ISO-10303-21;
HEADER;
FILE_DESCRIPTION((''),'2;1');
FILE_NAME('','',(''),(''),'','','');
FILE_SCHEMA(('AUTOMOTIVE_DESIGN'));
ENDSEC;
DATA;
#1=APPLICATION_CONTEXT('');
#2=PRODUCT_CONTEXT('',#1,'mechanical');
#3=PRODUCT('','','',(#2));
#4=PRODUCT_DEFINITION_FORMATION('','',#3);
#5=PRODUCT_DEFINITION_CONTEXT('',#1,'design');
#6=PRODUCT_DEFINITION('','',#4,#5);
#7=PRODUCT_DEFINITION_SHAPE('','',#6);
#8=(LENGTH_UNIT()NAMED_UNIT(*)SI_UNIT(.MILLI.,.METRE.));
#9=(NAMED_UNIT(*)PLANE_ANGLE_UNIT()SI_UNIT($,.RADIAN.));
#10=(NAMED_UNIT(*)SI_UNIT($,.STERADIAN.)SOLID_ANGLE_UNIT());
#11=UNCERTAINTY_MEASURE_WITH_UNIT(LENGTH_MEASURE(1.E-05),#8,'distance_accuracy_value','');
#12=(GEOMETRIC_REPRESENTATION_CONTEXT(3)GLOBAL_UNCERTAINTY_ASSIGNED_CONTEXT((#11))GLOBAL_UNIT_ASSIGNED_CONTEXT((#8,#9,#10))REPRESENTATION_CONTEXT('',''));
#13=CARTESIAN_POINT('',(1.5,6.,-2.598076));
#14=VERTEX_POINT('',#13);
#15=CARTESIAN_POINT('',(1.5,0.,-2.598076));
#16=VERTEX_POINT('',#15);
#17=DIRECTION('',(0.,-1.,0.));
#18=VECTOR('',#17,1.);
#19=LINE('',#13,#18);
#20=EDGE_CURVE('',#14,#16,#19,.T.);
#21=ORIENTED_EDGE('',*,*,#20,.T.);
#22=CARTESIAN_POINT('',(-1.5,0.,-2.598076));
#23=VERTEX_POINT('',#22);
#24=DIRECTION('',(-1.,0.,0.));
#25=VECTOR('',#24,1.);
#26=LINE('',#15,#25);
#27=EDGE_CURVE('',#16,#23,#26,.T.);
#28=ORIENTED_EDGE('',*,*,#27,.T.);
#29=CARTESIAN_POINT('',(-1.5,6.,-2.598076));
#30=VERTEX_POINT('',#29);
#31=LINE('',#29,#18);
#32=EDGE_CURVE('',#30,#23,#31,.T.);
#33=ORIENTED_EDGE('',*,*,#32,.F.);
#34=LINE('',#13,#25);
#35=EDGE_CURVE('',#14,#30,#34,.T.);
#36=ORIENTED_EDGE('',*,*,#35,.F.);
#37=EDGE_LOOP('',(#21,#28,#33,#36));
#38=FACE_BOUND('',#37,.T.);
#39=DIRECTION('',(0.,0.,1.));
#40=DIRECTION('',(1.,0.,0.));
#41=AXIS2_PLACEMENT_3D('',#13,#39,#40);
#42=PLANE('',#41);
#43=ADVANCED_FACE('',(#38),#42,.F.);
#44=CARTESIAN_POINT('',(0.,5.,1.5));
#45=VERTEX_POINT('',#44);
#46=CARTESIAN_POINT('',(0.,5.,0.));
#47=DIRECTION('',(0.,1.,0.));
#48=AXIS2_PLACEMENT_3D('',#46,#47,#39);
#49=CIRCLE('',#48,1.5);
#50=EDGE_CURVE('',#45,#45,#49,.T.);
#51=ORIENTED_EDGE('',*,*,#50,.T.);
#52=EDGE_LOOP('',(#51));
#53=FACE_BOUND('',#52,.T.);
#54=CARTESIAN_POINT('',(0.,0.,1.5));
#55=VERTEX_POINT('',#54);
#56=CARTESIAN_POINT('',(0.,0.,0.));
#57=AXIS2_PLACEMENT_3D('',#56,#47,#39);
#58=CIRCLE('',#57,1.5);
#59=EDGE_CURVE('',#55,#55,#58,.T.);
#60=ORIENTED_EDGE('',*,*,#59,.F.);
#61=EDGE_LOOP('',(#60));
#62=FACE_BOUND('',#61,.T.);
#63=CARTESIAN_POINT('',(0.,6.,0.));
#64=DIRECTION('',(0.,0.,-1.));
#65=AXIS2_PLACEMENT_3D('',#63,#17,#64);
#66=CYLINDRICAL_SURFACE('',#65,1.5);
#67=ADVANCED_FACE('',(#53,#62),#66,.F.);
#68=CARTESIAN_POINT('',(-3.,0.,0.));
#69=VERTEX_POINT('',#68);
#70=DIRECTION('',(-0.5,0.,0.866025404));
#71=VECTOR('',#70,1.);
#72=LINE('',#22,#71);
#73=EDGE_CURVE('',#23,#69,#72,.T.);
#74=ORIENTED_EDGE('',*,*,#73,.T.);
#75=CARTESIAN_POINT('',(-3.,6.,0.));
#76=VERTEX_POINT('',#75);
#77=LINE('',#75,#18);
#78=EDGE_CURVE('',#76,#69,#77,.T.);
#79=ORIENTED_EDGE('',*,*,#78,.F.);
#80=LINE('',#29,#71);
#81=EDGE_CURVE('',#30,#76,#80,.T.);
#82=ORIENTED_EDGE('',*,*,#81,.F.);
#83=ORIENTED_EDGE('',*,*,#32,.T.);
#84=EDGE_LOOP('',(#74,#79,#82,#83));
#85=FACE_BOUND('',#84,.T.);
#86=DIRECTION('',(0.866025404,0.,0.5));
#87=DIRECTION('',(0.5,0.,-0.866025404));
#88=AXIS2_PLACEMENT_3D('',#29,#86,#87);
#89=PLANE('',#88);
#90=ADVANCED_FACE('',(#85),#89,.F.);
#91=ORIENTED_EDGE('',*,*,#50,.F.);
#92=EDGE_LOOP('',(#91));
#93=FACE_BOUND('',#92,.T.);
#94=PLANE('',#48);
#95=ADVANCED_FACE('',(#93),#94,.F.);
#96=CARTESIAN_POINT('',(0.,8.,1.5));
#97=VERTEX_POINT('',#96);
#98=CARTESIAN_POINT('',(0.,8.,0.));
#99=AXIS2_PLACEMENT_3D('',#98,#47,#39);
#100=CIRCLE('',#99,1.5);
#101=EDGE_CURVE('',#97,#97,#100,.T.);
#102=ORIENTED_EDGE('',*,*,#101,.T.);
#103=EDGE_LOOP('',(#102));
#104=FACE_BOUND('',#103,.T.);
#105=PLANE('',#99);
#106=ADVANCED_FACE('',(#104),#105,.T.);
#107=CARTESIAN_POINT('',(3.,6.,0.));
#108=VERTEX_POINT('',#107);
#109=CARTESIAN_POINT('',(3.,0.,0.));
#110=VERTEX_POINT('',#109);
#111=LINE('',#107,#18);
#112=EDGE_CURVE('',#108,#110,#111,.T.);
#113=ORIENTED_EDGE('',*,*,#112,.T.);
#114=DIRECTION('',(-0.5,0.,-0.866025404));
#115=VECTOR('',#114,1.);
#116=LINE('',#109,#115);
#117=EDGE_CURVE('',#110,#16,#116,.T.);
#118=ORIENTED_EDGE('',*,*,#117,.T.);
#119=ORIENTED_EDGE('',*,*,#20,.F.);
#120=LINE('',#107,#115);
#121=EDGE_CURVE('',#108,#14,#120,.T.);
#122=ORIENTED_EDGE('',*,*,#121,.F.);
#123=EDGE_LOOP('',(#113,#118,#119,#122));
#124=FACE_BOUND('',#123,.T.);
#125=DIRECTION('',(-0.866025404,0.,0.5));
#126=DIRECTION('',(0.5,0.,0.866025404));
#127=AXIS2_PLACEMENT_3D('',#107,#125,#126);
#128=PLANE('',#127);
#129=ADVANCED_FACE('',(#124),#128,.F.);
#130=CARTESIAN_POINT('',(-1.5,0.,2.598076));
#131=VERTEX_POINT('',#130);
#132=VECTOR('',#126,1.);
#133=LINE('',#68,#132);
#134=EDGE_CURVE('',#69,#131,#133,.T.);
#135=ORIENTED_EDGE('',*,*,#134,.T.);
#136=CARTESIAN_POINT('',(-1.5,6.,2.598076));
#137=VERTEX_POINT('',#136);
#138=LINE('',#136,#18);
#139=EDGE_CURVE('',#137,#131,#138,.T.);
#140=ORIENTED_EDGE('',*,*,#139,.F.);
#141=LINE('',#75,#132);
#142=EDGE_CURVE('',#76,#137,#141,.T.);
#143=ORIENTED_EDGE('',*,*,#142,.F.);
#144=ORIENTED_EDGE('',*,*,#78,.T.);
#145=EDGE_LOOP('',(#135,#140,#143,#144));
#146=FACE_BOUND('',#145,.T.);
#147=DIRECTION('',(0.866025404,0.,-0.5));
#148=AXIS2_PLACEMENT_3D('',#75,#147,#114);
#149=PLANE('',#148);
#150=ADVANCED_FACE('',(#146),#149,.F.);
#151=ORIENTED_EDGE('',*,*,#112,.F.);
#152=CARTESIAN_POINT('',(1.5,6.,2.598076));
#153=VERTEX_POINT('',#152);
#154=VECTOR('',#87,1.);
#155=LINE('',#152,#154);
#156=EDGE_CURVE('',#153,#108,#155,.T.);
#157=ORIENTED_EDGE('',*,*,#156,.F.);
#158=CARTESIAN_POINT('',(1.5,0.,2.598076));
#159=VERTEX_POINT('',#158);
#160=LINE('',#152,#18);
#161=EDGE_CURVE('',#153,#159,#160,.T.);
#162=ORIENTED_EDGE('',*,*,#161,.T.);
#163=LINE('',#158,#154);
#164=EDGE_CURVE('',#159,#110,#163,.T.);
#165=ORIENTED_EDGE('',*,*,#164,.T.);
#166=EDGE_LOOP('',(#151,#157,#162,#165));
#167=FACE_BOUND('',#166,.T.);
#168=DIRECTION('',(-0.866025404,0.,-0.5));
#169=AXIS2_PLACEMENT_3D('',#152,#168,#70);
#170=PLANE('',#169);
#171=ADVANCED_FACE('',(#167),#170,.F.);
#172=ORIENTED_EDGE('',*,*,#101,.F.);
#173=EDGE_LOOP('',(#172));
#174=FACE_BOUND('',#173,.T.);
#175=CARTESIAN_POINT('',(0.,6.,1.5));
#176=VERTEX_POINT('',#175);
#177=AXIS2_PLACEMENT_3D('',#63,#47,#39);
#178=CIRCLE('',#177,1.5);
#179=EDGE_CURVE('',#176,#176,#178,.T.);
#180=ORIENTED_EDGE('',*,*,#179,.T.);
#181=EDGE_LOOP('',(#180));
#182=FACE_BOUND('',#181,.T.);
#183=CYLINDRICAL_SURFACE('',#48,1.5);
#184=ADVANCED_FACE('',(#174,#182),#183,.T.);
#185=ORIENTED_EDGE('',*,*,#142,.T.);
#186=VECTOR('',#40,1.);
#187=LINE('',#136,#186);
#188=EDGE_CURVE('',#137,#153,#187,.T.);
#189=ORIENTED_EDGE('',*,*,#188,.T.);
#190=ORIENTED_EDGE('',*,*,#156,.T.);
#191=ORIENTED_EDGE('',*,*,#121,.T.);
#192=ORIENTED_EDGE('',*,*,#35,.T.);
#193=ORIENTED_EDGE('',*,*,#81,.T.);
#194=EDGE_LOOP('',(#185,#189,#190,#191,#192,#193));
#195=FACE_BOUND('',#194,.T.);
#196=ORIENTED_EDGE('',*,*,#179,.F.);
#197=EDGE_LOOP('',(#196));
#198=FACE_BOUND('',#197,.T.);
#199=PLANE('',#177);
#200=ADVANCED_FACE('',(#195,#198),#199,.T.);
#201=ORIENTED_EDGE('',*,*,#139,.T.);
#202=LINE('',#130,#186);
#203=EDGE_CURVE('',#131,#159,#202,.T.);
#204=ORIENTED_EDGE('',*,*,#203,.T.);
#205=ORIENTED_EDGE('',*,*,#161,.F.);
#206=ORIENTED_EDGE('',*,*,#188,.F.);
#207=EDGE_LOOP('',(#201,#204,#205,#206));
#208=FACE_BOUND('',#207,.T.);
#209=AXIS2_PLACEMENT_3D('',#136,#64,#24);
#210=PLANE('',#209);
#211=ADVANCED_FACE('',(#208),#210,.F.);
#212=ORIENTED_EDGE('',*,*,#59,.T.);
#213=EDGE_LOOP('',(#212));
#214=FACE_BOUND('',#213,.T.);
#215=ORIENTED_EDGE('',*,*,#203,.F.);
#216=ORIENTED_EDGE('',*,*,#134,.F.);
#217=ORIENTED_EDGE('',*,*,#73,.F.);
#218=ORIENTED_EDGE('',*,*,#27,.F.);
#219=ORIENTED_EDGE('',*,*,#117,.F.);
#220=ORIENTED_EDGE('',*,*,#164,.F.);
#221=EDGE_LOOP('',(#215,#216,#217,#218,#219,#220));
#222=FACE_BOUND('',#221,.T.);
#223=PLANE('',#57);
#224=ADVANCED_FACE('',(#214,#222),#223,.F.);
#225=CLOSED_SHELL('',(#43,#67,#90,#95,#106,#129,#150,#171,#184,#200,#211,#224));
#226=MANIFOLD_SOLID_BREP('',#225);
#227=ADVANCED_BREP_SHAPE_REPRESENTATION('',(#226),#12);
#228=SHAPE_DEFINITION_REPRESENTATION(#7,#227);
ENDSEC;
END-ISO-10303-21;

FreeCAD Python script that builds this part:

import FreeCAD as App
import Part
import Sketcher
Q = App.Units.Quantity


def add_polygon(sketch, points):
    """Adds a closed chain of lines whose ends are joined by coincident constraints."""
    first, n = sketch.GeometryCount, len(points)
    for a, b in zip(points, points[1:] + points[:1]):
        sketch.addGeometry(Part.LineSegment(App.Vector(*a, 0), App.Vector(*b, 0)), False)
    for i in range(n):
        sketch.addConstraint(Sketcher.Constraint("Coincident", first + i, 2, first + (i + 1) % n, 1))

doc = App.newDocument("Part")
body = doc.addObject("PartDesign::Body", "Body")

# Sketch on XZ plane
sketch1 = body.newObject("Sketcher::SketchObject", "Sketch")
sketch1.AttachmentSupport = (doc.getObject("XZ_Plane"), [""])
sketch1.MapMode = "FlatFace"
add_polygon(sketch1, [(3, 0), (1.5, -2.6), (-1.5, -2.6), (-3, 0), (-1.5, 2.6), (1.5, 2.6)])  # lines 0-5
sketch1.addGeometry(Part.Circle(App.Vector(0, 0, 0), App.Vector(0, 0, 1), 1.5), False)  # 6
sketch1.addConstraint([
    Sketcher.Constraint("Horizontal", 1),
    Sketcher.Constraint("Horizontal", 4),
    Sketcher.Constraint("Coincident", 6, 3, -1, 1),
    Sketcher.Constraint("Symmetric", 0, 2, 3, 2, -1, 1),
    Sketcher.Constraint("Symmetric", 2, 2, 5, 2, -1, 1),
    Sketcher.Constraint("PointOnObject", 2, 2, -1),
    Sketcher.Constraint("Parallel", 2, 5),
    Sketcher.Constraint("Vertical", 1, 2, 3, 2),
    Sketcher.Constraint("Diameter", 6, Q("3 mm")),
    Sketcher.Constraint("DistanceX", 1, 2, 1, 1, Q("3 mm")),
    Sketcher.Constraint("Angle", 0, Q("-120 deg")),
    Sketcher.Constraint("Distance", 0, Q("3 mm")),
])
pad1 = body.newObject("PartDesign::Pad", "Pad")
pad1.Profile = sketch1
pad1.Length = 6
pad1.Reversed = True

# Sketch on XZ plane
sketch2 = body.newObject("Sketcher::SketchObject", "Sketch001")
sketch2.AttachmentSupport = (doc.getObject("XZ_Plane"), [""])
sketch2.MapMode = "FlatFace"
sketch2.AttachmentOffset = App.Placement(App.Vector(0, 0, -6), App.Rotation())
sketch2.addGeometry(Part.Circle(App.Vector(0, 0, 0), App.Vector(0, 0, 1), 1.5), False)
sketch2.addConstraint([
    Sketcher.Constraint("Coincident", 0, 3, -1, 1),
    Sketcher.Constraint("Diameter", 0, Q("3 mm")),
])
pad2 = body.newObject("PartDesign::Pad", "Pad001")
pad2.Profile = sketch2
pad2.Type = "TwoLengths"
pad2.Length = 2
pad2.Length2 = 1
pad2.Reversed = True

doc.recompute()
